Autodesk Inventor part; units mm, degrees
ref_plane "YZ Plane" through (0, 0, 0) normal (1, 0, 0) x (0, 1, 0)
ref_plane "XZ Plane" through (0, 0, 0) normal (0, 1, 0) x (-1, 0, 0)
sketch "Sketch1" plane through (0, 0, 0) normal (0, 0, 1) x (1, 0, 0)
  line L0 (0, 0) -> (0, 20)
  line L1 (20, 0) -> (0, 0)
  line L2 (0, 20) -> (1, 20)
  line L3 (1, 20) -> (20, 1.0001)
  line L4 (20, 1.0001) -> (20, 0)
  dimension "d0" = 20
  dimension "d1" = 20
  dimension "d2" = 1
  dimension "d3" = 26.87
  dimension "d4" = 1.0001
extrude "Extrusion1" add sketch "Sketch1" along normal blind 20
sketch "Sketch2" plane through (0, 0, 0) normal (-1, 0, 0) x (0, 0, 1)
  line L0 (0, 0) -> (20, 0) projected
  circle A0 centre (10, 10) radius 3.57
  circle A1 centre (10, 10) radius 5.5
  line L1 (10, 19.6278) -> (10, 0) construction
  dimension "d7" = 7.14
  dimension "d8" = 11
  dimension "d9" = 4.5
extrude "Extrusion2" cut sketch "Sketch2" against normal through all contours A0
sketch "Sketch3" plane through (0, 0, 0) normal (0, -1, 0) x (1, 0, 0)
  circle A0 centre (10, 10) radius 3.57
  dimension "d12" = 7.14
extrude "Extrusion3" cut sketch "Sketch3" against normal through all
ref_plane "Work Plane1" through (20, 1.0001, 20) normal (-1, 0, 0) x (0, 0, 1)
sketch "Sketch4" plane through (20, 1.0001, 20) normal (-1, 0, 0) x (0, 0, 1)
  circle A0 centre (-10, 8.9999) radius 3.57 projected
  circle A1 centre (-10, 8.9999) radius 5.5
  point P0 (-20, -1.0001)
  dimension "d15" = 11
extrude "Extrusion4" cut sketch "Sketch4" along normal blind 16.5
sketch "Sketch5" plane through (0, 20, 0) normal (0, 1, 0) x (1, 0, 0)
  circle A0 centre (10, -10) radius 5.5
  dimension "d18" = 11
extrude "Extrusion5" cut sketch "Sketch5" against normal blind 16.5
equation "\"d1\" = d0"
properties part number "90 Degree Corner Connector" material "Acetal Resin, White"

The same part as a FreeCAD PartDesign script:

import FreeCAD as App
import Part
import Sketcher


def add_polygon(sketch, points):
    """Adds a closed chain of lines whose ends are joined by coincident constraints."""
    first, n = sketch.GeometryCount, len(points)
    for a, b in zip(points, points[1:] + points[:1]):
        sketch.addGeometry(Part.LineSegment(App.Vector(*a, 0), App.Vector(*b, 0)), False)
    for i in range(n):
        sketch.addConstraint(Sketcher.Constraint("Coincident", first + i, 2, first + (i + 1) % n, 1))

doc = App.newDocument("Part")
body = doc.addObject("PartDesign::Body", "Body")

# Sketch on XY plane
sketch1 = body.newObject("Sketcher::SketchObject", "Sketch")
sketch1.AttachmentSupport = (doc.getObject("XY_Plane"), [""])
sketch1.MapMode = "FlatFace"
add_polygon(sketch1, [(0, 20), (0, 0), (20, 0), (20, 1), (1, 20)])  # lines 0-4
sketch1.addConstraint(Sketcher.Constraint("Vertical", 0))
sketch1.addConstraint(Sketcher.Constraint("Horizontal", 1))
sketch1.addConstraint(Sketcher.Constraint("Vertical", 2))
sketch1.addConstraint(Sketcher.Constraint("Horizontal", 4))
sketch1.addConstraint(Sketcher.Constraint("Coincident", 0, 2, -1, 1))
sketch1.addConstraint(Sketcher.Constraint("Equal", 1, 0))
sketch1.addConstraint(Sketcher.Constraint("Equal", 4, 2))
sketch1.addConstraint(Sketcher.Constraint("DistanceX", 1, 1, 1, 2, 20.0))
sketch1.addConstraint(Sketcher.Constraint("DistanceX", 4, 2, 4, 1, 1.0))
pad1 = body.newObject("PartDesign::Pad", "Pad")
pad1.Profile = sketch1
pad1.Length = 20

# Sketch on YZ plane
sketch2 = body.newObject("Sketcher::SketchObject", "Sketch001")
sketch2.AttachmentSupport = (doc.getObject("YZ_Plane"), [""])
sketch2.MapMode = "FlatFace"
sketch2.addGeometry(Part.Circle(App.Vector(10, 10, 0), App.Vector(0, 0, 1), 3.6), False)
sketch2.addConstraint(Sketcher.Constraint("Diameter", 0, 7.14))
sketch2.addConstraint(Sketcher.Constraint("DistanceX", -1, 1, 0, 3, 10.0))
sketch2.addConstraint(Sketcher.Constraint("DistanceY", -1, 1, 0, 3, 10.0))
pocket1 = body.newObject("PartDesign::Pocket", "Pocket")
pocket1.Profile = sketch2
pocket1.Type = "ThroughAll"
pocket1.Reversed = True

# Sketch on XZ plane
sketch3 = body.newObject("Sketcher::SketchObject", "Sketch002")
sketch3.AttachmentSupport = (doc.getObject("XZ_Plane"), [""])
sketch3.MapMode = "FlatFace"
sketch3.addGeometry(Part.Circle(App.Vector(10, 10, 0), App.Vector(0, 0, 1), 3.6), False)
sketch3.addConstraint(Sketcher.Constraint("Diameter", 0, 7.14))
sketch3.addConstraint(Sketcher.Constraint("DistanceX", -1, 1, 0, 3, 10.0))
sketch3.addConstraint(Sketcher.Constraint("DistanceY", -1, 1, 0, 3, 10.0))
pocket2 = body.newObject("PartDesign::Pocket", "Pocket001")
pocket2.Profile = sketch3
pocket2.Type = "ThroughAll"

# Sketch on YZ plane
sketch4 = body.newObject("Sketcher::SketchObject", "Sketch003")
sketch4.AttachmentSupport = (doc.getObject("YZ_Plane"), [""])
sketch4.MapMode = "FlatFace"
sketch4.AttachmentOffset = App.Placement(App.Vector(0, 0, 20), App.Rotation())
sketch4.addGeometry(Part.Circle(App.Vector(10, 10, 0), App.Vector(0, 0, 1), 5.5), False)
sketch4.addGeometry(Part.Circle(App.Vector(10, 10, 0), App.Vector(0, 0, 1), 3.6), False)
sketch4.addConstraint(Sketcher.Constraint("Coincident", 1, 3, 0, 3))
sketch4.addConstraint(Sketcher.Constraint("Diameter", 0, 11.0))
sketch4.addConstraint(Sketcher.Constraint("Diameter", 1, 7.14))
sketch4.addConstraint(Sketcher.Constraint("DistanceX", -1, 1, 0, 3, 10.0))
sketch4.addConstraint(Sketcher.Constraint("DistanceY", -1, 1, 0, 3, 10.0))
pocket3 = body.newObject("PartDesign::Pocket", "Pocket002")
pocket3.Profile = sketch4
pocket3.Length = 16.5

# Sketch on XZ plane
sketch5 = body.newObject("Sketcher::SketchObject", "Sketch004")
sketch5.AttachmentSupport = (doc.getObject("XZ_Plane"), [""])
sketch5.MapMode = "FlatFace"
sketch5.AttachmentOffset = App.Placement(App.Vector(0, 0, -20), App.Rotation())
sketch5.addGeometry(Part.Circle(App.Vector(10, 10, 0), App.Vector(0, 0, 1), 6), False)
sketch5.addConstraint(Sketcher.Constraint("Diameter", 0, 11.0))
sketch5.addConstraint(Sketcher.Constraint("DistanceX", -1, 1, 0, 3, 10.0))
sketch5.addConstraint(Sketcher.Constraint("DistanceY", -1, 1, 0, 3, 10.0))
pocket4 = body.newObject("PartDesign::Pocket", "Pocket003")
pocket4.Profile = sketch5
pocket4.Length = 16.5
pocket4.Reversed = True

doc.recompute()
